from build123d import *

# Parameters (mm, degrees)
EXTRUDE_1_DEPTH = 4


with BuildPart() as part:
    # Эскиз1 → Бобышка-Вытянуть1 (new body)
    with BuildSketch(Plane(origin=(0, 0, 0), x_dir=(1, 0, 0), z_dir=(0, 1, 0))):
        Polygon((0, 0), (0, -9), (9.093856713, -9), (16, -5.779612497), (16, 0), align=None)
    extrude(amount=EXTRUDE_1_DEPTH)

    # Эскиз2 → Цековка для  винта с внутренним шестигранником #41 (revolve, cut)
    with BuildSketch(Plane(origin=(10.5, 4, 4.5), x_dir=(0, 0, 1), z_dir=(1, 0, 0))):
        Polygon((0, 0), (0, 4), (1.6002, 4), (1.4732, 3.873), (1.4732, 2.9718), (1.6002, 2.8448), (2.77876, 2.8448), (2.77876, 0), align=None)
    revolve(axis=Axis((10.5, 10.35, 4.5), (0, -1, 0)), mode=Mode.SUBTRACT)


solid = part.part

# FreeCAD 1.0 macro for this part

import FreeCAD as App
import Part
import Sketcher

V = App.Vector
Q = App.Units.Quantity

doc = App.newDocument("Part")
body = doc.addObject("PartDesign::Body", "Body")

sketch1 = doc.addObject("Sketcher::SketchObject", "Sketch")
body.addObject(sketch1)
sketch1.AttachmentSupport = (doc.XZ_Plane, [""])
sketch1.MapMode = "FlatFace"
sketch1.addGeometry([
    Part.LineSegment(V(0, 0, 0), V(0, 9, 0)),
    Part.LineSegment(V(0, 9, 0), V(9, 9, 0)),
    Part.LineSegment(V(9, 9, 0), V(16, 6, 0)),
    Part.LineSegment(V(16, 6, 0), V(16, 0, 0)),
    Part.LineSegment(V(16, 0, 0), V(0, 0, 0)),
], False)
sketch1.addConstraint([
    Sketcher.Constraint("Coincident", 0, 2, 1, 1),
    Sketcher.Constraint("Coincident", 1, 2, 2, 1),
    Sketcher.Constraint("Coincident", 2, 2, 3, 1),
    Sketcher.Constraint("Coincident", 3, 2, 4, 1),
    Sketcher.Constraint("Coincident", 4, 2, 0, 1),
    Sketcher.Constraint("Vertical", 0),
    Sketcher.Constraint("Horizontal", 1),
    Sketcher.Constraint("Vertical", 3),
    Sketcher.Constraint("Horizontal", 4),
    Sketcher.Constraint("Coincident", 4, 2, -1, 1),
    Sketcher.Constraint("DistanceX", 4, 2, 4, 1, 16.0),
    Sketcher.Constraint("DistanceY", 0, 1, 0, 2, 9.0),
    Sketcher.Constraint("Angle", 2, Q("-25 deg")),
    Sketcher.Constraint("DistanceX", 1, 1, 1, 2, 9.093857),
])
pad1 = doc.addObject("PartDesign::Pad", "Pad")
body.addObject(pad1)
pad1.Profile = sketch1
pad1.Length = 4
pad1.Reversed = True

sketch2 = doc.addObject("Sketcher::SketchObject", "Sketch001")
body.addObject(sketch2)
sketch2.AttachmentSupport = (doc.YZ_Plane, [""])
sketch2.MapMode = "FlatFace"
sketch2.AttachmentOffset = App.Placement(V(0, 0, 10.5), App.Rotation())
sketch2.addGeometry([
    Part.LineSegment(V(0, 4.5, 0), V(4, 4.5, 0)),
    Part.LineSegment(V(4, 4.5, 0), V(4, 7.28, 0)),
    Part.LineSegment(V(4, 7.28, 0), V(1.16, 7.28, 0)),
    Part.LineSegment(V(1.16, 7.28, 0), V(1.16, 6.1, 0)),
    Part.LineSegment(V(1.16, 6.1, 0), V(1.03, 5.97, 0)),
    Part.LineSegment(V(1.03, 5.97, 0), V(0.13, 5.97, 0)),
    Part.LineSegment(V(0.13, 5.97, 0), V(0, 6.1, 0)),
    Part.LineSegment(V(0, 6.1, 0), V(0, 4.5, 0)),
], False)
sketch2.addGeometry(Part.LineSegment(V(4, 4.5, 0), V(0, 4.5, 0)), True)
sketch2.addConstraint([
    Sketcher.Constraint("Coincident", 0, 2, 1, 1),
    Sketcher.Constraint("Coincident", 1, 2, 2, 1),
    Sketcher.Constraint("Coincident", 2, 2, 3, 1),
    Sketcher.Constraint("Coincident", 3, 2, 4, 1),
    Sketcher.Constraint("Coincident", 4, 2, 5, 1),
    Sketcher.Constraint("Coincident", 5, 2, 6, 1),
    Sketcher.Constraint("Coincident", 6, 2, 7, 1),
    Sketcher.Constraint("Coincident", 7, 2, 0, 1),
    Sketcher.Constraint("Horizontal", 0),
    Sketcher.Constraint("Vertical", 1),
    Sketcher.Constraint("Horizontal", 2),
    Sketcher.Constraint("Vertical", 3),
    Sketcher.Constraint("Horizontal", 5),
    Sketcher.Constraint("Vertical", 7),
    Sketcher.Constraint("Horizontal", 8),
    Sketcher.Constraint("Coincident", 8, 1, 0, 2),
    Sketcher.Constraint("PointOnObject", 6, 2, -2),
    Sketcher.Constraint("PointOnObject", 8, 2, -2),
    Sketcher.Constraint("Perpendicular", 4, 6),
    Sketcher.Constraint("Horizontal", 3, 2, 6, 2),
    Sketcher.Constraint("Equal", 4, 6),
    Sketcher.Constraint("DistanceX", 0, 1, 0, 2, 4.0),
    Sketcher.Constraint("DistanceY", -1, 1, 0, 2, 4.5),
    Sketcher.Constraint("DistanceX", 2, 2, 2, 1, 2.8448),
    Sketcher.Constraint("DistanceX", 5, 2, 5, 1, 0.9012),
    Sketcher.Constraint("DistanceY", 7, 2, 7, 1, 1.6002),
    Sketcher.Constraint("DistanceY", 1, 1, 1, 2, 2.77876),
])
groove = doc.addObject("PartDesign::Groove", "Groove")
body.addObject(groove)
groove.Profile = sketch2
groove.ReferenceAxis = (sketch2, ["Axis0"])
groove.Angle = 360

doc.recompute()
